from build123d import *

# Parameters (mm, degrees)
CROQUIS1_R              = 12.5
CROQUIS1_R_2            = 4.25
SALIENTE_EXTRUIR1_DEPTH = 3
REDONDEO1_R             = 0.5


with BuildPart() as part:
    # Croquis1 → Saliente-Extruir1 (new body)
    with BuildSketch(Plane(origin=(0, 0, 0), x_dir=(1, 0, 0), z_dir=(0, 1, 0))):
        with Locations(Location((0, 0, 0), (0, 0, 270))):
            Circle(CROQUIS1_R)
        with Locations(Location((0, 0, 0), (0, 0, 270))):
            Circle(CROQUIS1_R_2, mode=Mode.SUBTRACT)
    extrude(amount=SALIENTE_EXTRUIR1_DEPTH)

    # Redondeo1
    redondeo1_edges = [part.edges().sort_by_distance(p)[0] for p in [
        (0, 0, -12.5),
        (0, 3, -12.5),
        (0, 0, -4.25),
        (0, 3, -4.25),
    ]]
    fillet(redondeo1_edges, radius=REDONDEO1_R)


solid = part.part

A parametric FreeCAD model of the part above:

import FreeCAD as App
import Part
import Sketcher

V = App.Vector
Q = App.Units.Quantity


def edges_at(feature, points):
    """Names of the edges that pass closest to the given points."""
    edges = feature.Shape.Edges
    near = lambda p: min(range(len(edges)), key=lambda i: edges[i].distToShape(Part.Vertex(*p))[0])
    return sorted({f"Edge{near(p) + 1}" for p in points})

doc = App.newDocument("Part")
params = doc.addObject("Spreadsheet::Sheet", "Params")
for row, (alias, value) in enumerate([
    ("sketch1_diameter", "25 mm"),
    ("sketch1_diameter2", "8.5 mm"),
    ("pad1_length", "3 mm"),
    ("fillet_radius", "0.5 mm"),
], start=1):
    params.set(f"A{row}", alias)
    params.set(f"B{row}", "=" + value)
    params.setAlias(f"B{row}", alias)

body = doc.addObject("PartDesign::Body", "Body")

# Sketch on XZ plane
sketch1 = body.newObject("Sketcher::SketchObject", "Sketch")
sketch1.AttachmentSupport = (doc.getObject("XZ_Plane"), [""])
sketch1.MapMode = "FlatFace"
sketch1.addGeometry([
    Part.Circle(V(0, 0, 0), V(0, 0, 1), 12.5),
    Part.Circle(V(0, 0, 0), V(0, 0, 1), 4.25),
], False)
sketch1.addConstraint([
    Sketcher.Constraint("Coincident", 0, 3, -1, 1),
    Sketcher.Constraint("Coincident", 1, 3, -1, 1),
    Sketcher.Constraint("Diameter", 0, Q("25 mm")),
    Sketcher.Constraint("Diameter", 1, Q("8.5 mm")),
])
sketch1.setExpression("Constraints[2]", "Params.sketch1_diameter")
sketch1.setExpression("Constraints[3]", "Params.sketch1_diameter2")
pad1 = body.newObject("PartDesign::Pad", "Pad")
pad1.Profile = sketch1
pad1.setExpression("Length", "Params.pad1_length")
pad1.Reversed = True
doc.recompute()

fillet = body.newObject("PartDesign::Fillet", "Fillet")
fillet.Base = (pad1, edges_at(pad1, [
    (0, 0, -12.5),
    (0, 3, -12.5),
    (0, 0, -4.25),
    (0, 3, -4.25),
]))
fillet.setExpression("Radius", "Params.fillet_radius")

doc.recompute()
